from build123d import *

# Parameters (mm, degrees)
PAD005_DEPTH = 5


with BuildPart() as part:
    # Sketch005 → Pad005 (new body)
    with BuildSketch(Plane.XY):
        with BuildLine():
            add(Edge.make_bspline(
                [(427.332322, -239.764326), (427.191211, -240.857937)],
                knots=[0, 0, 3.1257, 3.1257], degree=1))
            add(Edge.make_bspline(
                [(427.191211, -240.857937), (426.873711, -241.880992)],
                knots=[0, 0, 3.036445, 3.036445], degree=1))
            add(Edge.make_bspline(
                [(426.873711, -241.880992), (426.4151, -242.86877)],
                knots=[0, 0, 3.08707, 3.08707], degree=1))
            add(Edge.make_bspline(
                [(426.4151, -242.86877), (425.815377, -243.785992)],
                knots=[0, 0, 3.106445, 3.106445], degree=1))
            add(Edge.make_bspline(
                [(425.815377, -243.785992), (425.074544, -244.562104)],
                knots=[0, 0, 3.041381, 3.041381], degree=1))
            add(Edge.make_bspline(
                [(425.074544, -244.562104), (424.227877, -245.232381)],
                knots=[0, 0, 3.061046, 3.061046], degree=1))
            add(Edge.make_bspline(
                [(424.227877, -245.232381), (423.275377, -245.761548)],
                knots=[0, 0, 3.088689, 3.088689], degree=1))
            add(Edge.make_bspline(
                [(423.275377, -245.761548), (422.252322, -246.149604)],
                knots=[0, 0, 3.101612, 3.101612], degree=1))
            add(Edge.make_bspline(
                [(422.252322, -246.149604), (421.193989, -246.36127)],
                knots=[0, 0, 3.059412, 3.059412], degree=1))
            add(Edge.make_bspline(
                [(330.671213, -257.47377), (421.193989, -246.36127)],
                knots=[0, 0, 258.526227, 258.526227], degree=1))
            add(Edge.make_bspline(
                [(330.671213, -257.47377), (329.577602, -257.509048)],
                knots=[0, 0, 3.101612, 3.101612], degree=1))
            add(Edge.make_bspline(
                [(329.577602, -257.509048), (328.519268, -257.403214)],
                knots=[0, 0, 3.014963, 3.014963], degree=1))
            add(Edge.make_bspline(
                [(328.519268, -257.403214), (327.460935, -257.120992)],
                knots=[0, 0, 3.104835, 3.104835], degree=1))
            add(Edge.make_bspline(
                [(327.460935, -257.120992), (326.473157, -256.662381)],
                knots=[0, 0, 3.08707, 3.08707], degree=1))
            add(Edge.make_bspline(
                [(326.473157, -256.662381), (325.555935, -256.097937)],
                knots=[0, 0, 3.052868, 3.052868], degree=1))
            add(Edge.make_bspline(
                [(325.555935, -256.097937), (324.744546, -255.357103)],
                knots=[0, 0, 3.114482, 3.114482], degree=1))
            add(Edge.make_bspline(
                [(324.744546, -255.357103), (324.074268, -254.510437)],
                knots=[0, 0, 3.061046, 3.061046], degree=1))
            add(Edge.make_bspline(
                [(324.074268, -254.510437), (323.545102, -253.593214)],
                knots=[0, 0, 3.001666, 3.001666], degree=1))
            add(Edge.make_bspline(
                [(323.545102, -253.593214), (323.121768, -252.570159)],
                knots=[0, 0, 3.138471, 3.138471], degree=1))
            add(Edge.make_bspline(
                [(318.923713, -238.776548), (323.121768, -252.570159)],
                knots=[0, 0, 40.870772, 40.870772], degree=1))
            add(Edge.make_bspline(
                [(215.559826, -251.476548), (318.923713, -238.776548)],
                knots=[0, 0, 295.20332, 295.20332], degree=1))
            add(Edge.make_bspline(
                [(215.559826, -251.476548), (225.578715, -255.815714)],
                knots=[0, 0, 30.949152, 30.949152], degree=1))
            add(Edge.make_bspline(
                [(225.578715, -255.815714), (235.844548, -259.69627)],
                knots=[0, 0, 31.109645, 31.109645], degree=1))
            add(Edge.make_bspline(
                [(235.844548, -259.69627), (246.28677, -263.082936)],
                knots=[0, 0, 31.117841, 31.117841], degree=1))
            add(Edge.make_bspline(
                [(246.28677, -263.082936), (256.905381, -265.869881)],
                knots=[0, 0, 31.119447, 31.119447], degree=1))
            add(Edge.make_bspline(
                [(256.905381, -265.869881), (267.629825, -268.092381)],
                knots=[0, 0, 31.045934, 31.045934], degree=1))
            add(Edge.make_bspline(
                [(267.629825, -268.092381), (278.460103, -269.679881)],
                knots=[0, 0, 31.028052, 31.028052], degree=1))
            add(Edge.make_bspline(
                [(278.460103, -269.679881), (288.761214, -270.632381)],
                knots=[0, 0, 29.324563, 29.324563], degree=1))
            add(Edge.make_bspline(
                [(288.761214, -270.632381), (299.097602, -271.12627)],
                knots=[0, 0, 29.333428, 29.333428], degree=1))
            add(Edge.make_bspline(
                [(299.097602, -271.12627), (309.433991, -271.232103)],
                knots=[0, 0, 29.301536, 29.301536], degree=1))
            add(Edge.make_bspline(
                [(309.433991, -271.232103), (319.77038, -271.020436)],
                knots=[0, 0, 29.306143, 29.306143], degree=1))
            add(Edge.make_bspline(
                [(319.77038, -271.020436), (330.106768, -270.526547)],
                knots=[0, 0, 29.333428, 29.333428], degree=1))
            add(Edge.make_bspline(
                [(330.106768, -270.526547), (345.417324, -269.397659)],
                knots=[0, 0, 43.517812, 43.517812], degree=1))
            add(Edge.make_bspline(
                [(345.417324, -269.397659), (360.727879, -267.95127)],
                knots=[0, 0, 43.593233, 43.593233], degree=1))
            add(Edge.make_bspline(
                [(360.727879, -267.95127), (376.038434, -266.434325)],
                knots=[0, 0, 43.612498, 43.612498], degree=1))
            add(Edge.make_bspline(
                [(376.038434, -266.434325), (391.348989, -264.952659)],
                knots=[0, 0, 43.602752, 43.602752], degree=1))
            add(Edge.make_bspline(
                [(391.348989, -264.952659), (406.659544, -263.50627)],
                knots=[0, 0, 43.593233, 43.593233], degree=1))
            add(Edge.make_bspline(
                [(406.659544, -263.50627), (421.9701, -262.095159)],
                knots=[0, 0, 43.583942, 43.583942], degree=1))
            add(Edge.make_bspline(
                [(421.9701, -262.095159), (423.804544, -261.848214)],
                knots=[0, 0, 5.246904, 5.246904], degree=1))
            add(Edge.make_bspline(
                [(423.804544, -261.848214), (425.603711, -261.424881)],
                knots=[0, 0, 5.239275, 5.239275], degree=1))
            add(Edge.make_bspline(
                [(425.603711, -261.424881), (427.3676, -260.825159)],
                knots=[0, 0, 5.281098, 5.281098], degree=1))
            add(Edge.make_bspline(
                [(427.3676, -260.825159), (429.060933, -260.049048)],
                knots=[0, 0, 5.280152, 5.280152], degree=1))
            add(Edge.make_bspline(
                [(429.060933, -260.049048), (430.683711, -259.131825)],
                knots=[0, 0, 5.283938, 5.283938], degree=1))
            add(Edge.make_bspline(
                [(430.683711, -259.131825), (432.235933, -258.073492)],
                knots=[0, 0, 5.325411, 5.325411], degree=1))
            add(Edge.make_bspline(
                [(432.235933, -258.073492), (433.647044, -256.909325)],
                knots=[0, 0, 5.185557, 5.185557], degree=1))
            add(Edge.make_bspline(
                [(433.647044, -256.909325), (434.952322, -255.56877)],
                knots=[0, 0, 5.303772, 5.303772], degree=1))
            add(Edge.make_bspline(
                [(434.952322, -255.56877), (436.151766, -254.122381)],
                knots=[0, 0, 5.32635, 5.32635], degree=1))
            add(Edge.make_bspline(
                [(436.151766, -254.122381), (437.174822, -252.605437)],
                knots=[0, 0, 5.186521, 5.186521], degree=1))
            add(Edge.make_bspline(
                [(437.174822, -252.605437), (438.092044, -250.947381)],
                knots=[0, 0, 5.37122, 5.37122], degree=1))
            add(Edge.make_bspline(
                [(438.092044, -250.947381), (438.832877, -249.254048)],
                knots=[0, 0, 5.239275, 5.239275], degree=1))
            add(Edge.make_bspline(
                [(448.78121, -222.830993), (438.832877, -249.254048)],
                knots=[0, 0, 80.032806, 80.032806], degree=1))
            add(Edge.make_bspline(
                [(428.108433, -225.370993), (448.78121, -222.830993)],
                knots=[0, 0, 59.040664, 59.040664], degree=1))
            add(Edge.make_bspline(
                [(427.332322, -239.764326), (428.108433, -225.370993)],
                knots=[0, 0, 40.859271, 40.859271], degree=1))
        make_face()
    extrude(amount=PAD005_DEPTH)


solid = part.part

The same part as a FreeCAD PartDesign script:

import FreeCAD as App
import Part
import Sketcher

doc = App.newDocument("Part")
body = doc.addObject("PartDesign::Body", "Body")

# Sketch on XY plane
sketch1 = body.newObject("Sketcher::SketchObject", "Sketch")
sketch1.AttachmentSupport = (doc.getObject("XY_Plane"), [""])
sketch1.MapMode = "FlatFace"
sketch1.addGeometry([
    Part.BSplineCurve([App.Vector(427.332322, -239.764326, 0), App.Vector(427.191211, -240.857937, 0)], [2, 2], [0, 3.1257], False, 1, [1, 1], False),  # 0
    Part.BSplineCurve([App.Vector(427.191211, -240.857937, 0), App.Vector(426.873711, -241.880992, 0)], [2, 2], [0, 3.036445], False, 1, [1, 1], False),  # 1
    Part.BSplineCurve([App.Vector(426.873711, -241.880992, 0), App.Vector(426.4151, -242.86877, 0)], [2, 2], [0, 3.08707], False, 1, [1, 1], False),  # 2
    Part.BSplineCurve([App.Vector(426.4151, -242.86877, 0), App.Vector(425.815377, -243.785992, 0)], [2, 2], [0, 3.106445], False, 1, [1, 1], False),  # 3
    Part.BSplineCurve([App.Vector(425.815377, -243.785992, 0), App.Vector(425.074544, -244.562104, 0)], [2, 2], [0, 3.041381], False, 1, [1, 1], False),  # 4
    Part.BSplineCurve([App.Vector(425.074544, -244.562104, 0), App.Vector(424.227877, -245.232381, 0)], [2, 2], [0, 3.061046], False, 1, [1, 1], False),  # 5
    Part.BSplineCurve([App.Vector(424.227877, -245.232381, 0), App.Vector(423.275377, -245.761548, 0)], [2, 2], [0, 3.088689], False, 1, [1, 1], False),  # 6
    Part.BSplineCurve([App.Vector(423.275377, -245.761548, 0), App.Vector(422.252322, -246.149604, 0)], [2, 2], [0, 3.101612], False, 1, [1, 1], False),  # 7
    Part.BSplineCurve([App.Vector(422.252322, -246.149604, 0), App.Vector(421.193989, -246.36127, 0)], [2, 2], [0, 3.059412], False, 1, [1, 1], False),  # 8
    Part.BSplineCurve([App.Vector(330.671213, -257.47377, 0), App.Vector(421.193989, -246.36127, 0)], [2, 2], [0, 258.526227], False, 1, [1, 1], False),  # 9
    Part.BSplineCurve([App.Vector(330.671213, -257.47377, 0), App.Vector(329.577602, -257.509048, 0)], [2, 2], [0, 3.101612], False, 1, [1, 1], False),  # 10
    Part.BSplineCurve([App.Vector(329.577602, -257.509048, 0), App.Vector(328.519268, -257.403214, 0)], [2, 2], [0, 3.014963], False, 1, [1, 1], False),  # 11
    Part.BSplineCurve([App.Vector(328.519268, -257.403214, 0), App.Vector(327.460935, -257.120992, 0)], [2, 2], [0, 3.104835], False, 1, [1, 1], False),  # 12
    Part.BSplineCurve([App.Vector(327.460935, -257.120992, 0), App.Vector(326.473157, -256.662381, 0)], [2, 2], [0, 3.08707], False, 1, [1, 1], False),  # 13
    Part.BSplineCurve([App.Vector(326.473157, -256.662381, 0), App.Vector(325.555935, -256.097937, 0)], [2, 2], [0, 3.052868], False, 1, [1, 1], False),  # 14
    Part.BSplineCurve([App.Vector(325.555935, -256.097937, 0), App.Vector(324.744546, -255.357103, 0)], [2, 2], [0, 3.114482], False, 1, [1, 1], False),  # 15
    Part.BSplineCurve([App.Vector(324.744546, -255.357103, 0), App.Vector(324.074268, -254.510437, 0)], [2, 2], [0, 3.061046], False, 1, [1, 1], False),  # 16
    Part.BSplineCurve([App.Vector(324.074268, -254.510437, 0), App.Vector(323.545102, -253.593214, 0)], [2, 2], [0, 3.001666], False, 1, [1, 1], False),  # 17
    Part.BSplineCurve([App.Vector(323.545102, -253.593214, 0), App.Vector(323.121768, -252.570159, 0)], [2, 2], [0, 3.138471], False, 1, [1, 1], False),  # 18
    Part.BSplineCurve([App.Vector(318.923713, -238.776548, 0), App.Vector(323.121768, -252.570159, 0)], [2, 2], [0, 40.870772], False, 1, [1, 1], False),  # 19
    Part.BSplineCurve([App.Vector(215.559826, -251.476548, 0), App.Vector(318.923713, -238.776548, 0)], [2, 2], [0, 295.20332], False, 1, [1, 1], False),  # 20
    Part.BSplineCurve([App.Vector(215.559826, -251.476548, 0), App.Vector(225.578715, -255.815714, 0)], [2, 2], [0, 30.949152], False, 1, [1, 1], False),  # 21
    Part.BSplineCurve([App.Vector(225.578715, -255.815714, 0), App.Vector(235.844548, -259.69627, 0)], [2, 2], [0, 31.109645], False, 1, [1, 1], False),  # 22
    Part.BSplineCurve([App.Vector(235.844548, -259.69627, 0), App.Vector(246.28677, -263.082936, 0)], [2, 2], [0, 31.117841], False, 1, [1, 1], False),  # 23
    Part.BSplineCurve([App.Vector(246.28677, -263.082936, 0), App.Vector(256.905381, -265.869881, 0)], [2, 2], [0, 31.119447], False, 1, [1, 1], False),  # 24
    Part.BSplineCurve([App.Vector(256.905381, -265.869881, 0), App.Vector(267.629825, -268.092381, 0)], [2, 2], [0, 31.045934], False, 1, [1, 1], False),  # 25
    Part.BSplineCurve([App.Vector(267.629825, -268.092381, 0), App.Vector(278.460103, -269.679881, 0)], [2, 2], [0, 31.028052], False, 1, [1, 1], False),  # 26
    Part.BSplineCurve([App.Vector(278.460103, -269.679881, 0), App.Vector(288.761214, -270.632381, 0)], [2, 2], [0, 29.324563], False, 1, [1, 1], False),  # 27
    Part.BSplineCurve([App.Vector(288.761214, -270.632381, 0), App.Vector(299.097602, -271.12627, 0)], [2, 2], [0, 29.333428], False, 1, [1, 1], False),  # 28
    Part.BSplineCurve([App.Vector(299.097602, -271.12627, 0), App.Vector(309.433991, -271.232103, 0)], [2, 2], [0, 29.301536], False, 1, [1, 1], False),  # 29
    Part.BSplineCurve([App.Vector(309.433991, -271.232103, 0), App.Vector(319.77038, -271.020436, 0)], [2, 2], [0, 29.306143], False, 1, [1, 1], False),  # 30
    Part.BSplineCurve([App.Vector(319.77038, -271.020436, 0), App.Vector(330.106768, -270.526547, 0)], [2, 2], [0, 29.333428], False, 1, [1, 1], False),  # 31
    Part.BSplineCurve([App.Vector(330.106768, -270.526547, 0), App.Vector(345.417324, -269.397659, 0)], [2, 2], [0, 43.517812], False, 1, [1, 1], False),  # 32
    Part.BSplineCurve([App.Vector(345.417324, -269.397659, 0), App.Vector(360.727879, -267.95127, 0)], [2, 2], [0, 43.593233], False, 1, [1, 1], False),  # 33
    Part.BSplineCurve([App.Vector(360.727879, -267.95127, 0), App.Vector(376.038434, -266.434325, 0)], [2, 2], [0, 43.612498], False, 1, [1, 1], False),  # 34
    Part.BSplineCurve([App.Vector(376.038434, -266.434325, 0), App.Vector(391.348989, -264.952659, 0)], [2, 2], [0, 43.602752], False, 1, [1, 1], False),  # 35
    Part.BSplineCurve([App.Vector(391.348989, -264.952659, 0), App.Vector(406.659544, -263.50627, 0)], [2, 2], [0, 43.593233], False, 1, [1, 1], False),  # 36
    Part.BSplineCurve([App.Vector(406.659544, -263.50627, 0), App.Vector(421.9701, -262.095159, 0)], [2, 2], [0, 43.583942], False, 1, [1, 1], False),  # 37
    Part.BSplineCurve([App.Vector(421.9701, -262.095159, 0), App.Vector(423.804544, -261.848214, 0)], [2, 2], [0, 5.246904], False, 1, [1, 1], False),  # 38
    Part.BSplineCurve([App.Vector(423.804544, -261.848214, 0), App.Vector(425.603711, -261.424881, 0)], [2, 2], [0, 5.239275], False, 1, [1, 1], False),  # 39
    Part.BSplineCurve([App.Vector(425.603711, -261.424881, 0), App.Vector(427.3676, -260.825159, 0)], [2, 2], [0, 5.281098], False, 1, [1, 1], False),  # 40
    Part.BSplineCurve([App.Vector(427.3676, -260.825159, 0), App.Vector(429.060933, -260.049048, 0)], [2, 2], [0, 5.280152], False, 1, [1, 1], False),  # 41
    Part.BSplineCurve([App.Vector(429.060933, -260.049048, 0), App.Vector(430.683711, -259.131825, 0)], [2, 2], [0, 5.283938], False, 1, [1, 1], False),  # 42
    Part.BSplineCurve([App.Vector(430.683711, -259.131825, 0), App.Vector(432.235933, -258.073492, 0)], [2, 2], [0, 5.325411], False, 1, [1, 1], False),  # 43
    Part.BSplineCurve([App.Vector(432.235933, -258.073492, 0), App.Vector(433.647044, -256.909325, 0)], [2, 2], [0, 5.185557], False, 1, [1, 1], False),  # 44
    Part.BSplineCurve([App.Vector(433.647044, -256.909325, 0), App.Vector(434.952322, -255.56877, 0)], [2, 2], [0, 5.303772], False, 1, [1, 1], False),  # 45
    Part.BSplineCurve([App.Vector(434.952322, -255.56877, 0), App.Vector(436.151766, -254.122381, 0)], [2, 2], [0, 5.32635], False, 1, [1, 1], False),  # 46
    Part.BSplineCurve([App.Vector(436.151766, -254.122381, 0), App.Vector(437.174822, -252.605437, 0)], [2, 2], [0, 5.186521], False, 1, [1, 1], False),  # 47
    Part.BSplineCurve([App.Vector(437.174822, -252.605437, 0), App.Vector(438.092044, -250.947381, 0)], [2, 2], [0, 5.37122], False, 1, [1, 1], False),  # 48
    Part.BSplineCurve([App.Vector(438.092044, -250.947381, 0), App.Vector(438.832877, -249.254048, 0)], [2, 2], [0, 5.239275], False, 1, [1, 1], False),  # 49
    Part.BSplineCurve([App.Vector(448.78121, -222.830993, 0), App.Vector(438.832877, -249.254048, 0)], [2, 2], [0, 80.032806], False, 1, [1, 1], False),  # 50
    Part.BSplineCurve([App.Vector(428.108433, -225.370993, 0), App.Vector(448.78121, -222.830993, 0)], [2, 2], [0, 59.040664], False, 1, [1, 1], False),  # 51
    Part.BSplineCurve([App.Vector(427.332322, -239.764326, 0), App.Vector(428.108433, -225.370993, 0)], [2, 2], [0, 40.859271], False, 1, [1, 1], False),  # 52
], False)
sketch1.addConstraint([
    Sketcher.Constraint("Block", 0),
    Sketcher.Constraint("Block", 1),
    Sketcher.Constraint("Block", 2),
    Sketcher.Constraint("Block", 3),
    Sketcher.Constraint("Block", 4),
    Sketcher.Constraint("Block", 5),
    Sketcher.Constraint("Block", 6),
    Sketcher.Constraint("Block", 7),
    Sketcher.Constraint("Block", 8),
    Sketcher.Constraint("Block", 9),
    Sketcher.Constraint("Block", 10),
    Sketcher.Constraint("Block", 11),
    Sketcher.Constraint("Block", 12),
    Sketcher.Constraint("Block", 13),
    Sketcher.Constraint("Block", 14),
    Sketcher.Constraint("Block", 15),
    Sketcher.Constraint("Block", 16),
    Sketcher.Constraint("Block", 17),
    Sketcher.Constraint("Block", 18),
    Sketcher.Constraint("Block", 19),
    Sketcher.Constraint("Block", 20),
    Sketcher.Constraint("Block", 21),
    Sketcher.Constraint("Block", 22),
    Sketcher.Constraint("Block", 23),
    Sketcher.Constraint("Block", 24),
    Sketcher.Constraint("Block", 25),
    Sketcher.Constraint("Block", 26),
    Sketcher.Constraint("Block", 27),
    Sketcher.Constraint("Block", 28),
    Sketcher.Constraint("Block", 29),
    Sketcher.Constraint("Block", 30),
    Sketcher.Constraint("Block", 31),
    Sketcher.Constraint("Block", 32),
    Sketcher.Constraint("Block", 33),
    Sketcher.Constraint("Block", 34),
    Sketcher.Constraint("Block", 35),
    Sketcher.Constraint("Block", 36),
    Sketcher.Constraint("Block", 37),
    Sketcher.Constraint("Block", 38),
    Sketcher.Constraint("Block", 39),
    Sketcher.Constraint("Block", 40),
    Sketcher.Constraint("Block", 41),
    Sketcher.Constraint("Block", 42),
    Sketcher.Constraint("Block", 43),
    Sketcher.Constraint("Block", 44),
    Sketcher.Constraint("Block", 45),
    Sketcher.Constraint("Block", 46),
    Sketcher.Constraint("Block", 47),
    Sketcher.Constraint("Block", 48),
    Sketcher.Constraint("Block", 49),
    Sketcher.Constraint("Block", 50),
    Sketcher.Constraint("Block", 51),
    Sketcher.Constraint("Block", 52),
])
pad1 = body.newObject("PartDesign::Pad", "Pad")
pad1.Profile = sketch1
pad1.Length = 5

doc.recompute()
